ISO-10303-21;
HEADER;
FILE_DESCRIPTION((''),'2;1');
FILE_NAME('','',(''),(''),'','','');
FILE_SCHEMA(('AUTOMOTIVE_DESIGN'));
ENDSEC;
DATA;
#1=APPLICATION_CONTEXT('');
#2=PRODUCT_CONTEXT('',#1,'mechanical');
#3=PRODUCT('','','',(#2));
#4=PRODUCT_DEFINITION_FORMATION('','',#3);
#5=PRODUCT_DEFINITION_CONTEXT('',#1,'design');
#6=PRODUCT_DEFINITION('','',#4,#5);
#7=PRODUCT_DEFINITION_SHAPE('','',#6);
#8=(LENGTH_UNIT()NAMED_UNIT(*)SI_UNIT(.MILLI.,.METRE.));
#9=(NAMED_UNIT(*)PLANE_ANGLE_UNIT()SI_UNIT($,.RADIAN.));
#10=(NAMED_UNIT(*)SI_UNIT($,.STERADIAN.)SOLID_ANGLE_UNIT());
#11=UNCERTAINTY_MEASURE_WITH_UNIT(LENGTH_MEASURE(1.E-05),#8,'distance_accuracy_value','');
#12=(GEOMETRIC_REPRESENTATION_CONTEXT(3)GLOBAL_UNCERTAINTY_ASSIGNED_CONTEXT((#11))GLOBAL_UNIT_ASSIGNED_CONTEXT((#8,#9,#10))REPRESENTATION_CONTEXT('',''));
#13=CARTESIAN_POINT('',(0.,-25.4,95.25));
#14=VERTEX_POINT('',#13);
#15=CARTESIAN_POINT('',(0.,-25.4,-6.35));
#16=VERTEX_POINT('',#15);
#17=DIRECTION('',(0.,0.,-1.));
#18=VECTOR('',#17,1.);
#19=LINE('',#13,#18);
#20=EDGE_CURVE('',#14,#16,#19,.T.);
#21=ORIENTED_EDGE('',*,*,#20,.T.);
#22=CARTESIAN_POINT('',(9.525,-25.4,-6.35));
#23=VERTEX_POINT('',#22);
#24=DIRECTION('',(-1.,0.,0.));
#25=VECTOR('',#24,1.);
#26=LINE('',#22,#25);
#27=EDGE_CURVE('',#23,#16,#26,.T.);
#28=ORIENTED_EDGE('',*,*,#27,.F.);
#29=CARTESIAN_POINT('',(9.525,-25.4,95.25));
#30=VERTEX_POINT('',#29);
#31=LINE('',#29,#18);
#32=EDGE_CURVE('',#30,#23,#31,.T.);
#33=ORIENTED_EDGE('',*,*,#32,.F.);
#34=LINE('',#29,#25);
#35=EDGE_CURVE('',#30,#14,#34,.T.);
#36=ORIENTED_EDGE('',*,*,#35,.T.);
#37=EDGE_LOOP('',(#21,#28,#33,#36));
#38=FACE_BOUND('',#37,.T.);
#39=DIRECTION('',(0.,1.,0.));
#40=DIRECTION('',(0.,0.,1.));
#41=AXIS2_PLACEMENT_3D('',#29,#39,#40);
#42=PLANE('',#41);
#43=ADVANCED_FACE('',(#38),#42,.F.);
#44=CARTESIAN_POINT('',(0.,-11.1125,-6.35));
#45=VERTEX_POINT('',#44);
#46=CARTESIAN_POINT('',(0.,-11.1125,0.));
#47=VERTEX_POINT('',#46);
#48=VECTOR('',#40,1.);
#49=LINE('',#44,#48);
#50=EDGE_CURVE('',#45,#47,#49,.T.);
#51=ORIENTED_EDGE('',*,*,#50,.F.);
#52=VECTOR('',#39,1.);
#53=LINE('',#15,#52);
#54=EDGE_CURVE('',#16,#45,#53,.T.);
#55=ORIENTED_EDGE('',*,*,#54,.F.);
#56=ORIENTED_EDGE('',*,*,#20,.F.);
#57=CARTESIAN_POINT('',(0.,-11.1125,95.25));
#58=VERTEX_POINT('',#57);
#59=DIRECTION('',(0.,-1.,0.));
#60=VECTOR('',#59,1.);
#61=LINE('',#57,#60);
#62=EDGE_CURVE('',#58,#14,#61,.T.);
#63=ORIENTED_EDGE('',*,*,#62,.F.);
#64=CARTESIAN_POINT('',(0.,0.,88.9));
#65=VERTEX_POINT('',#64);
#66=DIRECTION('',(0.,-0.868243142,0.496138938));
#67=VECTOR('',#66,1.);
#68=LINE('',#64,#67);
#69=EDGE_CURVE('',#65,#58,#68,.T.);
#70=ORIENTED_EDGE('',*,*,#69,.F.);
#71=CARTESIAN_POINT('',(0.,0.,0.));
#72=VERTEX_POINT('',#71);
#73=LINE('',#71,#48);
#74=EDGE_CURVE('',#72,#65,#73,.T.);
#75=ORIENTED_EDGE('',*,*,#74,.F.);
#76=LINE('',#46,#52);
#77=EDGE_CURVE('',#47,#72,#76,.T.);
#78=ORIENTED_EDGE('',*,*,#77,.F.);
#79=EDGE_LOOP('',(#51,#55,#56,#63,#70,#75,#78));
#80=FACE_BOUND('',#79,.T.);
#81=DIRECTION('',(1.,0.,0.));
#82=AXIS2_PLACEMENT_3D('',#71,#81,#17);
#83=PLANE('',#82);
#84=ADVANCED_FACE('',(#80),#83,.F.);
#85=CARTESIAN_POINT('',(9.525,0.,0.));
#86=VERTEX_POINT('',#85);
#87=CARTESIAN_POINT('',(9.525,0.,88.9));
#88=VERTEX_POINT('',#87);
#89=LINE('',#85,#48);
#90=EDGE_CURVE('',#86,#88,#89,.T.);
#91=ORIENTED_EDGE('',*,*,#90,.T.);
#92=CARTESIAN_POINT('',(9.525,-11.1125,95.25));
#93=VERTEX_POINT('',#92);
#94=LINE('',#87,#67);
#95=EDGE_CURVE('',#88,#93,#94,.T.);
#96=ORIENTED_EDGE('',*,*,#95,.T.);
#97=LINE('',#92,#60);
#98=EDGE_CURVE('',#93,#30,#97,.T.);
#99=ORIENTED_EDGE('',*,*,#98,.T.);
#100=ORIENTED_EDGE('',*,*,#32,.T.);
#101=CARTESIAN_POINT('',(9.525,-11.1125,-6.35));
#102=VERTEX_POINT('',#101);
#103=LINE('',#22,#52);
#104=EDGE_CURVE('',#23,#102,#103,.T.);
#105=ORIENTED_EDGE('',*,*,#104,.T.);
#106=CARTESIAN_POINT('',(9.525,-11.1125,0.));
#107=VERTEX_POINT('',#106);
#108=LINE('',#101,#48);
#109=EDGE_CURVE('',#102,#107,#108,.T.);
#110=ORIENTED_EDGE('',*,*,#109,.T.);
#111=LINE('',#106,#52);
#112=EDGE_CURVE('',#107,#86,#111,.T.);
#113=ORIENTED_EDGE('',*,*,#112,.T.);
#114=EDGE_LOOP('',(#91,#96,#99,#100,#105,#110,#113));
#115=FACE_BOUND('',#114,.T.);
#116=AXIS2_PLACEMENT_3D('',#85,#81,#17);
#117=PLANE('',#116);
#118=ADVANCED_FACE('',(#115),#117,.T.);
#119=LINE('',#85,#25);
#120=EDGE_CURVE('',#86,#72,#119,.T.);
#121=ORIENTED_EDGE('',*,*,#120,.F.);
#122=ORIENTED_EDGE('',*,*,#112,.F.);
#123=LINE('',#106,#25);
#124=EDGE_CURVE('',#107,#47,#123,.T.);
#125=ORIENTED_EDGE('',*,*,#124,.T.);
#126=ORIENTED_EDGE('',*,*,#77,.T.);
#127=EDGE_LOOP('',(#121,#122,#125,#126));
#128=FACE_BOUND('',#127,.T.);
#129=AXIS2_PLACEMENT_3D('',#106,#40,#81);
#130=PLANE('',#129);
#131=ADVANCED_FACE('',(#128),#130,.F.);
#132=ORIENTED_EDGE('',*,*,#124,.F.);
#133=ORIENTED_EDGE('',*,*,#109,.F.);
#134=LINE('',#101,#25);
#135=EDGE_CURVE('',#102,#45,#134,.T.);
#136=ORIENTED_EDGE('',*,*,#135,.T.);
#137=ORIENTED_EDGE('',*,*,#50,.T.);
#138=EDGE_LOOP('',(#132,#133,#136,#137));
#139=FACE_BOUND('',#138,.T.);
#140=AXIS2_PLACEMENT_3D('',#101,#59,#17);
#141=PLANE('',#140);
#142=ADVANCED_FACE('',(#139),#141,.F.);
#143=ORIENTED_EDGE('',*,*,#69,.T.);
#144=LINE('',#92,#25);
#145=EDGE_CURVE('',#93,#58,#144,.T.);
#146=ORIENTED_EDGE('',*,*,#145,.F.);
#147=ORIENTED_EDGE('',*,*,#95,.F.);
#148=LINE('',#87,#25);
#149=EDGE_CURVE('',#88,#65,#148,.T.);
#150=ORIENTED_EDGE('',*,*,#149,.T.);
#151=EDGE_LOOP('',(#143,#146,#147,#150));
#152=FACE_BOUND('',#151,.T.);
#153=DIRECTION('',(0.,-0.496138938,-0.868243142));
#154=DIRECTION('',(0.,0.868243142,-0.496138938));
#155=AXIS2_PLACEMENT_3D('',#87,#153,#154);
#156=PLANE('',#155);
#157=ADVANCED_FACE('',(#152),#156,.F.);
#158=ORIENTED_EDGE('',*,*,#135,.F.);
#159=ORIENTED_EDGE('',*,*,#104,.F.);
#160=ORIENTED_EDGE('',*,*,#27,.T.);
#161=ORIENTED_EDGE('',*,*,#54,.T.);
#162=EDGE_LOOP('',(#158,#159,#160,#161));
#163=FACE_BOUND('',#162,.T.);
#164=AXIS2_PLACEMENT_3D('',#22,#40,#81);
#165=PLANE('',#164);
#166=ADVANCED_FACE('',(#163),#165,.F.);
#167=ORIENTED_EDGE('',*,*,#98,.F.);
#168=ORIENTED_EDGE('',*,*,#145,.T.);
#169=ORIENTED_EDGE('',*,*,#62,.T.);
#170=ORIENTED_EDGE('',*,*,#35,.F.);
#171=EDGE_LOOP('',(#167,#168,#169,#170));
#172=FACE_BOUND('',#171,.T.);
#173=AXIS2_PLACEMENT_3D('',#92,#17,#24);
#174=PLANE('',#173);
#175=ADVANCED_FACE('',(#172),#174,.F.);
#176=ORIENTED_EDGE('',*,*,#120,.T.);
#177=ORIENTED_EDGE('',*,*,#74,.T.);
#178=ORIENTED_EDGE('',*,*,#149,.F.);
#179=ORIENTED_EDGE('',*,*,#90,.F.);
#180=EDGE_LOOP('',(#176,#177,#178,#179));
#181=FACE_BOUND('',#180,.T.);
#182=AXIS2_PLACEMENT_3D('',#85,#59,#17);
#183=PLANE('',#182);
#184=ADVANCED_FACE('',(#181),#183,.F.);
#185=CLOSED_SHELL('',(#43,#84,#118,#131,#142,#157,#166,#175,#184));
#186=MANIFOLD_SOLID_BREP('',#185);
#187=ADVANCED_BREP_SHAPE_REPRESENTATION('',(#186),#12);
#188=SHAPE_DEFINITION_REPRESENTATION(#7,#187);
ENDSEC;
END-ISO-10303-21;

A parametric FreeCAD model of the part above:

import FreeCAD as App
import Part
import Sketcher
from FreeCAD import Vector
Q = App.Units.Quantity

doc = App.newDocument("Part")
body = doc.addObject("PartDesign::Body", "Body")

# Sketch on YZ plane
sketch1 = body.newObject("Sketcher::SketchObject", "Sketch")
sketch1.AttachmentSupport = (doc.getObject("YZ_Plane"), [""])
sketch1.MapMode = "FlatFace"
sketch1.addGeometry([
    Part.LineSegment(Vector(0, 0, 0), Vector(0, 88.9, 0)),  # 0
    Part.LineSegment(Vector(0, 88.9, 0), Vector(-11.1125, 95.25, 0)),  # 1
    Part.LineSegment(Vector(-11.1125, 95.25, 0), Vector(-25.4, 95.25, 0)),  # 2
    Part.LineSegment(Vector(-25.4, 95.25, 0), Vector(-25.4, -6.35, 0)),  # 3
    Part.LineSegment(Vector(-25.4, -6.35, 0), Vector(-11.1125, -6.35, 0)),  # 4
    Part.LineSegment(Vector(-11.1125, -6.35, 0), Vector(-11.1125, 0, 0)),  # 5
    Part.LineSegment(Vector(-11.1125, 0, 0), Vector(0, 0, 0)),  # 6
], False)
sketch1.addConstraint([
    Sketcher.Constraint("Coincident", 0, 2, 1, 1),
    Sketcher.Constraint("Coincident", 1, 2, 2, 1),
    Sketcher.Constraint("Coincident", 2, 2, 3, 1),
    Sketcher.Constraint("Coincident", 3, 2, 4, 1),
    Sketcher.Constraint("Coincident", 4, 2, 5, 1),
    Sketcher.Constraint("Coincident", 5, 2, 6, 1),
    Sketcher.Constraint("Coincident", 6, 2, 0, 1),
    Sketcher.Constraint("Vertical", 0),
    Sketcher.Constraint("Horizontal", 2),
    Sketcher.Constraint("Vertical", 3),
    Sketcher.Constraint("Horizontal", 4),
    Sketcher.Constraint("Vertical", 5),
    Sketcher.Constraint("Horizontal", 6),
    Sketcher.Constraint("Coincident", 6, 2, -1, 1),
    Sketcher.Constraint("Vertical", 1, 2, 4, 2),
    Sketcher.Constraint("DistanceY", 3, 2, 3, 1, Q("4 in")),
    Sketcher.Constraint("DistanceY", 0, 1, 0, 2, Q("3.5 in")),
    Sketcher.Constraint("DistanceX", 2, 2, -1, 1, Q("1 in")),
    Sketcher.Constraint("DistanceY", 5, 1, 5, 2, Q("0.25 in")),
    Sketcher.Constraint("DistanceX", 2, 2, 2, 1, Q("0.5625 in")),
])
pad1 = body.newObject("PartDesign::Pad", "Pad")
pad1.Profile = sketch1
pad1.Length = Q("0.375 in")

doc.recompute()
